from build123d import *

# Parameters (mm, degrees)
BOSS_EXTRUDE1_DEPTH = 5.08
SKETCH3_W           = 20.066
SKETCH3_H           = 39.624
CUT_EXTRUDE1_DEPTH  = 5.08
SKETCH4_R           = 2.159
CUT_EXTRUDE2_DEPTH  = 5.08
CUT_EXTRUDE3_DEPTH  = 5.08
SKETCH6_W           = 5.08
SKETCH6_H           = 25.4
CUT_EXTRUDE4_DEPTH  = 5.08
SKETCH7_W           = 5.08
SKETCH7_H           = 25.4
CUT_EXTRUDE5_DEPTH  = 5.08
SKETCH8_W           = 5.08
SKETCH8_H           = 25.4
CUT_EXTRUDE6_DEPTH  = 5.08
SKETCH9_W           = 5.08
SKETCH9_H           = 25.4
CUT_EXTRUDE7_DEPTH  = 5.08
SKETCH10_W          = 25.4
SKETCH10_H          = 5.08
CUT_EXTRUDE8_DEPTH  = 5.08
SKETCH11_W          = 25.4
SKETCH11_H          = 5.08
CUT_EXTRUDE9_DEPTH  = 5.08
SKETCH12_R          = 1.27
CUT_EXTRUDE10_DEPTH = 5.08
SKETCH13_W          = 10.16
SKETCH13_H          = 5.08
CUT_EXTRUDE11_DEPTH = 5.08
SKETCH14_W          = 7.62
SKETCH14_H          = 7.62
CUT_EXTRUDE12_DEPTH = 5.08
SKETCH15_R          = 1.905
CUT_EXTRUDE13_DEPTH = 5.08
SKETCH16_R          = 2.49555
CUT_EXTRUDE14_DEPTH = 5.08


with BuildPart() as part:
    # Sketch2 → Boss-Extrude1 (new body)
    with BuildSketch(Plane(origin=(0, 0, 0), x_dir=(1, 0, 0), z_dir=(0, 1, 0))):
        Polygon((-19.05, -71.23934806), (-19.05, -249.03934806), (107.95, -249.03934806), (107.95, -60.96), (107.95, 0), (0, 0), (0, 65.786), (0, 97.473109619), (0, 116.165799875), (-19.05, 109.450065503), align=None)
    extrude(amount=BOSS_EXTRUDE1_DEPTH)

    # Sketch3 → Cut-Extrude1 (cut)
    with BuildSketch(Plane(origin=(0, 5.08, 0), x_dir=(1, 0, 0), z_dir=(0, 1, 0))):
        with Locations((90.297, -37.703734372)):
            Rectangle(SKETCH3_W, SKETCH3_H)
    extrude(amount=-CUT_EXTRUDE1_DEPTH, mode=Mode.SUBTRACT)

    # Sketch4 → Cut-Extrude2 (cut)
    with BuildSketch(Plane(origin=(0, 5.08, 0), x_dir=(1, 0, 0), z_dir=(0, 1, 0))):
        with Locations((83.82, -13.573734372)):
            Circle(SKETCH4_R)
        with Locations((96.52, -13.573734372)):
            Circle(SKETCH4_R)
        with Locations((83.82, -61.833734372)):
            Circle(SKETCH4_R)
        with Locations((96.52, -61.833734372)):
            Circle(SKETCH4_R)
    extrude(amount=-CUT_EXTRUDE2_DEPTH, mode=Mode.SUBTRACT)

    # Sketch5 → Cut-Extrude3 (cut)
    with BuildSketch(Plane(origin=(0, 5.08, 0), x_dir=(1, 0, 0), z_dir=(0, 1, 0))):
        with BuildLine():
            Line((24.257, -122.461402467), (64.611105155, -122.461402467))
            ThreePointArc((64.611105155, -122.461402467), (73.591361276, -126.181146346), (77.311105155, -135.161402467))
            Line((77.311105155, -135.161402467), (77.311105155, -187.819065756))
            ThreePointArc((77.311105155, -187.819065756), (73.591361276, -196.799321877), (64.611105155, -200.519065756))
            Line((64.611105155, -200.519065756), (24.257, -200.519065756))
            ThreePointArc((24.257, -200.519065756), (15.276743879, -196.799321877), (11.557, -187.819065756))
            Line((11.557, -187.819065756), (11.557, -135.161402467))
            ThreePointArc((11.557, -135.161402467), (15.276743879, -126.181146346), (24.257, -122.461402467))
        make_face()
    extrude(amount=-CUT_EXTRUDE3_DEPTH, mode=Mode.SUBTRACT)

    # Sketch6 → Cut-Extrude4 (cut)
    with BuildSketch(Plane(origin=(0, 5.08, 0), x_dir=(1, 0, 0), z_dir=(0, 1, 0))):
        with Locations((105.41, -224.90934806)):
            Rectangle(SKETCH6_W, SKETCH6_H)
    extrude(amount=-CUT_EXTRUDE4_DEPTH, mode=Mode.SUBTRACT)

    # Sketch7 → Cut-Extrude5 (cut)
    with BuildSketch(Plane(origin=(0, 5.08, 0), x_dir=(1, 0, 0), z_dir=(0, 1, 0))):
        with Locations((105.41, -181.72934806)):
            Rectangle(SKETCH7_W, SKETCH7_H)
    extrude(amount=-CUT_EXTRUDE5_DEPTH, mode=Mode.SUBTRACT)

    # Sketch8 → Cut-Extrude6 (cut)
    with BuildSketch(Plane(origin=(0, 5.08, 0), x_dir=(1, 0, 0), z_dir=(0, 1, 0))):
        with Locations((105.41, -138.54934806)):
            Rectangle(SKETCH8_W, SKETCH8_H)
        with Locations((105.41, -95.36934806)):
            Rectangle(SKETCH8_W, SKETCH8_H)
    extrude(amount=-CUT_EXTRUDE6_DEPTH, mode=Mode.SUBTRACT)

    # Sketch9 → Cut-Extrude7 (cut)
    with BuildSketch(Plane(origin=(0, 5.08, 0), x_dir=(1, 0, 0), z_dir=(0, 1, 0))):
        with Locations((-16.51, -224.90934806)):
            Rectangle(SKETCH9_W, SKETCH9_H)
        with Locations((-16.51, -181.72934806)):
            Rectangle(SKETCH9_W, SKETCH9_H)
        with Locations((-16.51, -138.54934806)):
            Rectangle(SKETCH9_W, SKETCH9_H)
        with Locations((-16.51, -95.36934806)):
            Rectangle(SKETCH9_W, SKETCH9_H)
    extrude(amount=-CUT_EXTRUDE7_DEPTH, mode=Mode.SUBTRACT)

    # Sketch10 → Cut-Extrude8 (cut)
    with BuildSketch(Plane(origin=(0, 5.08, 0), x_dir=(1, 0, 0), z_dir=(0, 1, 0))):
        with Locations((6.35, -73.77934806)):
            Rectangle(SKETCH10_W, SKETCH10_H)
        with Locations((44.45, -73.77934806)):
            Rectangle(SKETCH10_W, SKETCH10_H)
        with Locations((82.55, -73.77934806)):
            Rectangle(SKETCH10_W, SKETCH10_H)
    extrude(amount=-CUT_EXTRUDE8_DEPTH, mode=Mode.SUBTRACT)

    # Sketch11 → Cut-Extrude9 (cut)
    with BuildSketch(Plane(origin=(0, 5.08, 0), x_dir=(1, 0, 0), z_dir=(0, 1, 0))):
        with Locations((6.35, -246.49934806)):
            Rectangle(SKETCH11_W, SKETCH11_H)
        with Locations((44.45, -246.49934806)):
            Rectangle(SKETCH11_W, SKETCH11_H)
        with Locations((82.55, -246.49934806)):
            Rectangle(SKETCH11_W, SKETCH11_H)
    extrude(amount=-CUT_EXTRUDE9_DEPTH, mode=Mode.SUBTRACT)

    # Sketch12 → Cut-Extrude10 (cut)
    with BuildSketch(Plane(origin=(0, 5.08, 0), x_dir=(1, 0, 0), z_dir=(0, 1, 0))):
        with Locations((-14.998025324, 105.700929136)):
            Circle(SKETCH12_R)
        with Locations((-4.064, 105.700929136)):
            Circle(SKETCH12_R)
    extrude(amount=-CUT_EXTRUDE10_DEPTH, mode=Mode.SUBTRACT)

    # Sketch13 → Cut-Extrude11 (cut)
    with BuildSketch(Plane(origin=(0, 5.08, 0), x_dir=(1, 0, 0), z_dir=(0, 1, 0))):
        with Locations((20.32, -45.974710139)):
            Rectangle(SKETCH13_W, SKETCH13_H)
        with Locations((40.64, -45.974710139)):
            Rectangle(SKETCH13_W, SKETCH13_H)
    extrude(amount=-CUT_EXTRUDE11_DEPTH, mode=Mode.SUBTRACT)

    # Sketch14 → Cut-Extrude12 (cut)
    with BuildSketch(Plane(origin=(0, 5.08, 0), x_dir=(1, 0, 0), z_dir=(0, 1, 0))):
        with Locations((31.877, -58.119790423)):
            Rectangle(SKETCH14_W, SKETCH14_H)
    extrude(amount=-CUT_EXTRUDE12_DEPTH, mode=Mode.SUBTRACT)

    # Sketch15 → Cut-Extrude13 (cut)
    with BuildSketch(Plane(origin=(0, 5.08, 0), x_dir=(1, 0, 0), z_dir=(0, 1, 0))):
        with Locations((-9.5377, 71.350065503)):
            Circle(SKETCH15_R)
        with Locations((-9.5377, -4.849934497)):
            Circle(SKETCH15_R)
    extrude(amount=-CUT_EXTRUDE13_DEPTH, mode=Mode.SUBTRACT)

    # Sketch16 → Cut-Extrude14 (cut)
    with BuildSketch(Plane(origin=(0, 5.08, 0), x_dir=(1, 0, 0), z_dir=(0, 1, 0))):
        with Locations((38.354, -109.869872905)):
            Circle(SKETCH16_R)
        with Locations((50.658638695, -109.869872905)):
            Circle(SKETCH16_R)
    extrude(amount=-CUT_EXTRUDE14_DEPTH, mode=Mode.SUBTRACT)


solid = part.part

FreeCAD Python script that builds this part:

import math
import FreeCAD as App
import Part
import Sketcher

V = App.Vector
Q = App.Units.Quantity

doc = App.newDocument("Part")
params = doc.addObject("Spreadsheet::Sheet", "Params")
for row, (alias, value) in enumerate([
    ("sketch1_width", "5 in"),
    ("sketch1_width2", "4.25 in"),
    ("pad1_length", "0.2 in"),
    ("sketch2_width", "0.79 in"),
    ("sketch2_height", "1.56 in"),
    ("pocket1_length", "0.2 in"),
    ("sketch3_diameter", "0.17 in"),
    ("pocket2_length", "0.2 in"),
    ("sketch4_radius", "0.5 in"),
    ("pocket3_length", "0.2 in"),
    ("sketch5_height", "1 in"),
    ("sketch5_width", "0.2 in"),
    ("pocket4_length", "0.2 in"),
    ("sketch6_height", "1 in"),
    ("sketch6_width", "0.2 in"),
    ("pocket5_length", "0.2 in"),
    ("sketch7_height", "1 in"),
    ("sketch7_width", "0.2 in"),
    ("pocket6_length", "0.2 in"),
    ("sketch8_height", "1 in"),
    ("sketch8_width", "0.2 in"),
    ("pocket7_length", "0.2 in"),
    ("sketch9_width", "1 in"),
    ("sketch9_height", "0.2 in"),
    ("pocket8_length", "0.2 in"),
    ("sketch10_width", "1 in"),
    ("sketch10_height", "0.2 in"),
    ("pocket9_length", "0.2 in"),
    ("sketch11_diameter", "0.1 in"),
    ("pocket10_length", "0.2 in"),
    ("sketch12_width", "0.4 in"),
    ("sketch12_height", "0.2 in"),
    ("pocket11_length", "0.2 in"),
    ("sketch13_width", "0.3 in"),
    ("pocket12_length", "0.2 in"),
    ("sketch14_diameter", "0.15 in"),
    ("pocket13_length", "0.2 in"),
    ("pocket14_length", "0.2 in"),
], start=1):
    params.set(f"A{row}", alias)
    params.set(f"B{row}", "=" + value)
    params.setAlias(f"B{row}", alias)

body = doc.addObject("PartDesign::Body", "Body")

sketch1 = doc.addObject("Sketcher::SketchObject", "Sketch")
body.addObject(sketch1)
sketch1.AttachmentSupport = (doc.XZ_Plane, [""])
sketch1.MapMode = "FlatFace"
sketch1.addGeometry([
    Part.LineSegment(V(-19, 249, 0), V(108, 249, 0)),
    Part.LineSegment(V(108, 249, 0), V(108, 0, 0)),
    Part.LineSegment(V(108, 0, 0), V(0, 0, 0)),
    Part.LineSegment(V(0, 0, 0), V(0, -116, 0)),
    Part.LineSegment(V(0, -116, 0), V(-19, -109, 0)),
    Part.LineSegment(V(-19, -109, 0), V(-19, 249, 0)),
], False)
sketch1.addConstraint([
    Sketcher.Constraint("Coincident", 0, 2, 1, 1),
    Sketcher.Constraint("Coincident", 1, 2, 2, 1),
    Sketcher.Constraint("Coincident", 2, 2, 3, 1),
    Sketcher.Constraint("Coincident", 3, 2, 4, 1),
    Sketcher.Constraint("Coincident", 4, 2, 5, 1),
    Sketcher.Constraint("Coincident", 5, 2, 0, 1),
    Sketcher.Constraint("Horizontal", 0),
    Sketcher.Constraint("Vertical", 1),
    Sketcher.Constraint("Horizontal", 2),
    Sketcher.Constraint("Vertical", 3),
    Sketcher.Constraint("Vertical", 5),
    Sketcher.Constraint("Coincident", 2, 2, -1, 1),
    Sketcher.Constraint("DistanceX", 0, 1, 0, 2, Q("5 in")),
    Sketcher.Constraint("DistanceX", 2, 2, 2, 1, Q("4.25 in")),
    Sketcher.Constraint("DistanceY", 3, 2, 3, 1, Q("116.1658 mm")),
    Sketcher.Constraint("Distance", 4, Q("20.199099 mm")),
    Sketcher.Constraint("DistanceY", 1, 2, 1, 1, Q("249.039348 mm")),
])
sketch1.setExpression("Constraints[12]", "Params.sketch1_width")
sketch1.setExpression("Constraints[13]", "Params.sketch1_width2")
pad1 = doc.addObject("PartDesign::Pad", "Pad")
body.addObject(pad1)
pad1.Profile = sketch1
pad1.setExpression("Length", "Params.pad1_length")
pad1.Reversed = True

sketch2 = doc.addObject("Sketcher::SketchObject", "Sketch001")
body.addObject(sketch2)
sketch2.AttachmentSupport = (doc.XZ_Plane, [""])
sketch2.MapMode = "FlatFace"
sketch2.AttachmentOffset = App.Placement(V(0, 0, -0.2 * 25.4), App.Rotation())
sketch2.addGeometry([
    Part.LineSegment(V(80, 18, 0), V(80, 58, 0)),
    Part.LineSegment(V(80, 58, 0), V(100, 58, 0)),
    Part.LineSegment(V(100, 58, 0), V(100, 18, 0)),
    Part.LineSegment(V(100, 18, 0), V(80, 18, 0)),
], False)
sketch2.addConstraint([
    Sketcher.Constraint("Coincident", 0, 2, 1, 1),
    Sketcher.Constraint("Coincident", 1, 2, 2, 1),
    Sketcher.Constraint("Coincident", 2, 2, 3, 1),
    Sketcher.Constraint("Coincident", 3, 2, 0, 1),
    Sketcher.Constraint("Vertical", 0),
    Sketcher.Constraint("Horizontal", 1),
    Sketcher.Constraint("Vertical", 2),
    Sketcher.Constraint("Horizontal", 3),
    Sketcher.Constraint("DistanceX", 1, 1, 1, 2, Q("0.79 in")),
    Sketcher.Constraint("DistanceY", 0, 1, 0, 2, Q("1.56 in")),
    Sketcher.Constraint("DistanceX", -1, 1, 0, 2, Q("3.16 in")),
    Sketcher.Constraint("DistanceY", -1, 1, 0, 2, Q("57.515734 mm")),
])
sketch2.setExpression("Constraints[8]", "Params.sketch2_width")
sketch2.setExpression("Constraints[9]", "Params.sketch2_height")
pocket1 = doc.addObject("PartDesign::Pocket", "Pocket")
body.addObject(pocket1)
pocket1.Profile = sketch2
pocket1.setExpression("Length", "Params.pocket1_length")
pocket1.Reversed = True

sketch3 = doc.addObject("Sketcher::SketchObject", "Sketch002")
body.addObject(sketch3)
sketch3.AttachmentSupport = (doc.XZ_Plane, [""])
sketch3.MapMode = "FlatFace"
sketch3.AttachmentOffset = App.Placement(V(0, 0, -0.2 * 25.4), App.Rotation())
sketch3.addGeometry([
    Part.Circle(V(83.8, 13.6, 0), V(0, 0, 1), 2.2),
    Part.Circle(V(96.5, 13.6, 0), V(0, 0, 1), 2.2),
    Part.Circle(V(83.8, 61.8, 0), V(0, 0, 1), 2.2),
    Part.Circle(V(96.5, 61.8, 0), V(0, 0, 1), 2.2),
], False)
sketch3.addConstraint([
    Sketcher.Constraint("Equal", 0, 1),
    Sketcher.Constraint("Equal", 1, 2),
    Sketcher.Constraint("Equal", 2, 3),
    Sketcher.Constraint("Horizontal", 0, 3, 1, 3),
    Sketcher.Constraint("Horizontal", 2, 3, 3, 3),
    Sketcher.Constraint("Vertical", 0, 3, 2, 3),
    Sketcher.Constraint("Vertical", 1, 3, 3, 3),
    Sketcher.Constraint("Diameter", 0, Q("0.17 in")),
    Sketcher.Constraint("DistanceX", -1, 1, 0, 3, Q("3.3 in")),
    Sketcher.Constraint("DistanceX", -1, 1, 1, 3, Q("3.8 in")),
    Sketcher.Constraint("DistanceY", 0, 3, 2, 3, Q("1.9 in")),
    Sketcher.Constraint("DistanceY", -1, 1, 0, 3, Q("13.573734 mm")),
])
sketch3.setExpression("Constraints[7]", "Params.sketch3_diameter")
pocket2 = doc.addObject("PartDesign::Pocket", "Pocket001")
body.addObject(pocket2)
pocket2.Profile = sketch3
pocket2.setExpression("Length", "Params.pocket2_length")
pocket2.Reversed = True

sketch4 = doc.addObject("Sketcher::SketchObject", "Sketch003")
body.addObject(sketch4)
sketch4.AttachmentSupport = (doc.XZ_Plane, [""])
sketch4.MapMode = "FlatFace"
sketch4.AttachmentOffset = App.Placement(V(0, 0, -0.2 * 25.4), App.Rotation())
sketch4.addGeometry([
    Part.LineSegment(V(65, 122, 0), V(24, 122, 0)),
    Part.ArcOfCircle(Part.Circle(V(24, 135, 0), V(0, 0, 1), 13), math.radians(180), math.radians(270)),
    Part.LineSegment(V(12, 135, 0), V(12, 188, 0)),
    Part.ArcOfCircle(Part.Circle(V(24, 188, 0), V(0, 0, 1), 13), math.radians(90), math.radians(180)),
    Part.LineSegment(V(24, 201, 0), V(65, 201, 0)),
    Part.ArcOfCircle(Part.Circle(V(65, 188, 0), V(0, 0, 1), 13), math.radians(0), math.radians(90)),
    Part.LineSegment(V(77, 188, 0), V(77, 135, 0)),
    Part.ArcOfCircle(Part.Circle(V(65, 135, 0), V(0, 0, 1), 13), math.radians(-90), math.radians(0)),
], False)
sketch4.addConstraint([
    Sketcher.Constraint("Tangent", 0, 2, 1, 2),
    Sketcher.Constraint("Tangent", 1, 1, 2, 1),
    Sketcher.Constraint("Tangent", 2, 2, 3, 2),
    Sketcher.Constraint("Tangent", 3, 1, 4, 1),
    Sketcher.Constraint("Tangent", 4, 2, 5, 2),
    Sketcher.Constraint("Tangent", 5, 1, 6, 1),
    Sketcher.Constraint("Tangent", 6, 2, 7, 2),
    Sketcher.Constraint("Tangent", 7, 1, 0, 1),
    Sketcher.Constraint("Horizontal", 0),
    Sketcher.Constraint("Vertical", 2),
    Sketcher.Constraint("Horizontal", 4),
    Sketcher.Constraint("Vertical", 6),
    Sketcher.Constraint("Equal", 1, 3),
    Sketcher.Constraint("Equal", 3, 5),
    Sketcher.Constraint("Equal", 5, 7),
    Sketcher.Constraint("Radius", 1, Q("0.5 in")),
    Sketcher.Constraint("DistanceX", -1, 1, 1, 3, Q("0.955 in")),
    Sketcher.Constraint("DistanceX", 0, 2, 0, 1, Q("40.354105 mm")),
    Sketcher.Constraint("DistanceY", 2, 1, 2, 2, Q("52.657663 mm")),
    Sketcher.Constraint("DistanceY", -1, 1, 1, 3, Q("135.161402 mm")),
])
sketch4.setExpression("Constraints[15]", "Params.sketch4_radius")
pocket3 = doc.addObject("PartDesign::Pocket", "Pocket002")
body.addObject(pocket3)
pocket3.Profile = sketch4
pocket3.setExpression("Length", "Params.pocket3_length")
pocket3.Reversed = True

sketch5 = doc.addObject("Sketcher::SketchObject", "Sketch004")
body.addObject(sketch5)
sketch5.AttachmentSupport = (doc.XZ_Plane, [""])
sketch5.MapMode = "FlatFace"
sketch5.AttachmentOffset = App.Placement(V(0, 0, -0.2 * 25.4), App.Rotation())
sketch5.addGeometry([
    Part.LineSegment(V(103, 212, 0), V(103, 238, 0)),
    Part.LineSegment(V(103, 238, 0), V(108, 238, 0)),
    Part.LineSegment(V(108, 238, 0), V(108, 212, 0)),
    Part.LineSegment(V(108, 212, 0), V(103, 212, 0)),
], False)
sketch5.addConstraint([
    Sketcher.Constraint("Coincident", 0, 2, 1, 1),
    Sketcher.Constraint("Coincident", 1, 2, 2, 1),
    Sketcher.Constraint("Coincident", 2, 2, 3, 1),
    Sketcher.Constraint("Coincident", 3, 2, 0, 1),
    Sketcher.Constraint("Vertical", 0),
    Sketcher.Constraint("Horizontal", 1),
    Sketcher.Constraint("Vertical", 2),
    Sketcher.Constraint("Horizontal", 3),
    Sketcher.Constraint("DistanceY", 0, 1, 0, 2, Q("1 in")),
    Sketcher.Constraint("DistanceX", 1, 1, 1, 2, Q("0.2 in")),
    Sketcher.Constraint("DistanceX", -1, 1, 0, 2, Q("4.05 in")),
    Sketcher.Constraint("DistanceY", -1, 1, 0, 2, Q("237.609348 mm")),
])
sketch5.setExpression("Constraints[8]", "Params.sketch5_height")
sketch5.setExpression("Constraints[9]", "Params.sketch5_width")
pocket4 = doc.addObject("PartDesign::Pocket", "Pocket003")
body.addObject(pocket4)
pocket4.Profile = sketch5
pocket4.setExpression("Length", "Params.pocket4_length")
pocket4.Reversed = True

sketch6 = doc.addObject("Sketcher::SketchObject", "Sketch005")
body.addObject(sketch6)
sketch6.AttachmentSupport = (doc.XZ_Plane, [""])
sketch6.MapMode = "FlatFace"
sketch6.AttachmentOffset = App.Placement(V(0, 0, -0.2 * 25.4), App.Rotation())
sketch6.addGeometry([
    Part.LineSegment(V(103, 169, 0), V(103, 194, 0)),
    Part.LineSegment(V(103, 194, 0), V(108, 194, 0)),
    Part.LineSegment(V(108, 194, 0), V(108, 169, 0)),
    Part.LineSegment(V(108, 169, 0), V(103, 169, 0)),
], False)
sketch6.addConstraint([
    Sketcher.Constraint("Coincident", 0, 2, 1, 1),
    Sketcher.Constraint("Coincident", 1, 2, 2, 1),
    Sketcher.Constraint("Coincident", 2, 2, 3, 1),
    Sketcher.Constraint("Coincident", 3, 2, 0, 1),
    Sketcher.Constraint("Vertical", 0),
    Sketcher.Constraint("Horizontal", 1),
    Sketcher.Constraint("Vertical", 2),
    Sketcher.Constraint("Horizontal", 3),
    Sketcher.Constraint("DistanceY", 0, 1, 0, 2, Q("1 in")),
    Sketcher.Constraint("DistanceX", 1, 1, 1, 2, Q("0.2 in")),
    Sketcher.Constraint("DistanceX", -1, 1, 0, 2, Q("4.05 in")),
    Sketcher.Constraint("DistanceY", -1, 1, 0, 2, Q("194.429348 mm")),
])
sketch6.setExpression("Constraints[8]", "Params.sketch6_height")
sketch6.setExpression("Constraints[9]", "Params.sketch6_width")
pocket5 = doc.addObject("PartDesign::Pocket", "Pocket004")
body.addObject(pocket5)
pocket5.Profile = sketch6
pocket5.setExpression("Length", "Params.pocket5_length")
pocket5.Reversed = True

sketch7 = doc.addObject("Sketcher::SketchObject", "Sketch006")
body.addObject(sketch7)
sketch7.AttachmentSupport = (doc.XZ_Plane, [""])
sketch7.MapMode = "FlatFace"
sketch7.AttachmentOffset = App.Placement(V(0, 0, -0.2 * 25.4), App.Rotation())
sketch7.addGeometry([
    Part.LineSegment(V(103, 126, 0), V(103, 151, 0)),
    Part.LineSegment(V(103, 151, 0), V(108, 151, 0)),
    Part.LineSegment(V(108, 151, 0), V(108, 126, 0)),
    Part.LineSegment(V(108, 126, 0), V(103, 126, 0)),
    Part.LineSegment(V(103, 83, 0), V(103, 108, 0)),
    Part.LineSegment(V(103, 108, 0), V(108, 108, 0)),
    Part.LineSegment(V(108, 108, 0), V(108, 83, 0)),
    Part.LineSegment(V(108, 83, 0), V(103, 83, 0)),
], False)
sketch7.addConstraint([
    Sketcher.Constraint("Coincident", 0, 2, 1, 1),
    Sketcher.Constraint("Coincident", 1, 2, 2, 1),
    Sketcher.Constraint("Coincident", 2, 2, 3, 1),
    Sketcher.Constraint("Coincident", 3, 2, 0, 1),
    Sketcher.Constraint("Coincident", 4, 2, 5, 1),
    Sketcher.Constraint("Coincident", 5, 2, 6, 1),
    Sketcher.Constraint("Coincident", 6, 2, 7, 1),
    Sketcher.Constraint("Coincident", 7, 2, 4, 1),
    Sketcher.Constraint("Vertical", 0),
    Sketcher.Constraint("Horizontal", 1),
    Sketcher.Constraint("Vertical", 2),
    Sketcher.Constraint("Horizontal", 3),
    Sketcher.Constraint("Vertical", 4),
    Sketcher.Constraint("Horizontal", 5),
    Sketcher.Constraint("Vertical", 6),
    Sketcher.Constraint("Horizontal", 7),
    Sketcher.Constraint("Vertical", 3, 2, 4, 2),
    Sketcher.Constraint("Vertical", 2, 2, 5, 2),
    Sketcher.Constraint("Equal", 2, 4),
    Sketcher.Constraint("DistanceY", 0, 1, 0, 2, Q("1 in")),
    Sketcher.Constraint("DistanceX", 1, 1, 1, 2, Q("0.2 in")),
    Sketcher.Constraint("DistanceY", 4, 2, 3, 2, Q("0.7 in")),
    Sketcher.Constraint("DistanceX", -1, 1, 0, 2, Q("4.05 in")),
    Sketcher.Constraint("DistanceY", -1, 1, 0, 2, Q("151.249348 mm")),
])
sketch7.setExpression("Constraints[19]", "Params.sketch7_height")
sketch7.setExpression("Constraints[20]", "Params.sketch7_width")
pocket6 = doc.addObject("PartDesign::Pocket", "Pocket005")
body.addObject(pocket6)
pocket6.Profile = sketch7
pocket6.setExpression("Length", "Params.pocket6_length")
pocket6.Reversed = True

sketch8 = doc.addObject("Sketcher::SketchObject", "Sketch007")
body.addObject(sketch8)
sketch8.AttachmentSupport = (doc.XZ_Plane, [""])
sketch8.MapMode = "FlatFace"
sketch8.AttachmentOffset = App.Placement(V(0, 0, -0.2 * 25.4), App.Rotation())
sketch8.addGeometry([
    Part.LineSegment(V(-19, 212, 0), V(-19, 238, 0)),
    Part.LineSegment(V(-19, 238, 0), V(-14, 238, 0)),
    Part.LineSegment(V(-14, 238, 0), V(-14, 212, 0)),
    Part.LineSegment(V(-14, 212, 0), V(-19, 212, 0)),
    Part.LineSegment(V(-19, 169, 0), V(-19, 194, 0)),
    Part.LineSegment(V(-19, 194, 0), V(-14, 194, 0)),
    Part.LineSegment(V(-14, 194, 0), V(-14, 169, 0)),
    Part.LineSegment(V(-14, 169, 0), V(-19, 169, 0)),
    Part.LineSegment(V(-19, 126, 0), V(-19, 151, 0)),
    Part.LineSegment(V(-19, 151, 0), V(-14, 151, 0)),
    Part.LineSegment(V(-14, 151, 0), V(-14, 126, 0)),
    Part.LineSegment(V(-14, 126, 0), V(-19, 126, 0)),
    Part.LineSegment(V(-19, 83, 0), V(-19, 108, 0)),
    Part.LineSegment(V(-19, 108, 0), V(-14, 108, 0)),
    Part.LineSegment(V(-14, 108, 0), V(-14, 83, 0)),
    Part.LineSegment(V(-14, 83, 0), V(-19, 83, 0)),
], False)
sketch8.addConstraint([
    Sketcher.Constraint("Coincident", 0, 2, 1, 1),
    Sketcher.Constraint("Coincident", 1, 2, 2, 1),
    Sketcher.Constraint("Coincident", 2, 2, 3, 1),
    Sketcher.Constraint("Coincident", 3, 2, 0, 1),
    Sketcher.Constraint("Coincident", 4, 2, 5, 1),
    Sketcher.Constraint("Coincident", 5, 2, 6, 1),
    Sketcher.Constraint("Coincident", 6, 2, 7, 1),
    Sketcher.Constraint("Coincident", 7, 2, 4, 1),
    Sketcher.Constraint("Coincident", 8, 2, 9, 1),
    Sketcher.Constraint("Coincident", 9, 2, 10, 1),
    Sketcher.Constraint("Coincident", 10, 2, 11, 1),
    Sketcher.Constraint("Coincident", 11, 2, 8, 1),
    Sketcher.Constraint("Coincident", 12, 2, 13, 1),
    Sketcher.Constraint("Coincident", 13, 2, 14, 1),
    Sketcher.Constraint("Coincident", 14, 2, 15, 1),
    Sketcher.Constraint("Coincident", 15, 2, 12, 1),
    Sketcher.Constraint("Vertical", 0),
    Sketcher.Constraint("Horizontal", 1),
    Sketcher.Constraint("Vertical", 2),
    Sketcher.Constraint("Horizontal", 3),
    Sketcher.Constraint("Vertical", 4),
    Sketcher.Constraint("Horizontal", 5),
    Sketcher.Constraint("Vertical", 6),
    Sketcher.Constraint("Horizontal", 7),
    Sketcher.Constraint("Vertical", 8),
    Sketcher.Constraint("Horizontal", 9),
    Sketcher.Constraint("Vertical", 10),
    Sketcher.Constraint("Horizontal", 11),
    Sketcher.Constraint("Vertical", 12),
    Sketcher.Constraint("Horizontal", 13),
    Sketcher.Constraint("Vertical", 14),
    Sketcher.Constraint("Horizontal", 15),
    Sketcher.Constraint("Vertical", 3, 2, 4, 2),
    Sketcher.Constraint("Vertical", 2, 2, 5, 2),
    Sketcher.Constraint("Vertical", 7, 2, 8, 2),
    Sketcher.Constraint("Vertical", 6, 2, 9, 2),
    Sketcher.Constraint("Vertical", 11, 2, 12, 2),
    Sketcher.Constraint("Vertical", 10, 2, 13, 2),
    Sketcher.Constraint("Equal", 2, 4),
    Sketcher.Constraint("Equal", 6, 8),
    Sketcher.Constraint("Equal", 10, 12),
    Sketcher.Constraint("DistanceY", 0, 1, 0, 2, Q("1 in")),
    Sketcher.Constraint("DistanceX", 1, 1, 1, 2, Q("0.2 in")),
    Sketcher.Constraint("DistanceY", 4, 2, 3, 2, Q("0.7 in")),
    Sketcher.Constraint("DistanceY", 8, 2, 7, 2, Q("0.7 in")),
    Sketcher.Constraint("DistanceY", 12, 2, 11, 2, Q("0.7 in")),
    Sketcher.Constraint("DistanceX", 0, 2, -1, 1, Q("0.75 in")),
    Sketcher.Constraint("DistanceY", -1, 1, 0, 2, Q("237.609348 mm")),
])
sketch8.setExpression("Constraints[41]", "Params.sketch8_height")
sketch8.setExpression("Constraints[42]", "Params.sketch8_width")
pocket7 = doc.addObject("PartDesign::Pocket", "Pocket006")
body.addObject(pocket7)
pocket7.Profile = sketch8
pocket7.setExpression("Length", "Params.pocket7_length")
pocket7.Reversed = True

sketch9 = doc.addObject("Sketcher::SketchObject", "Sketch008")
body.addObject(sketch9)
sketch9.AttachmentSupport = (doc.XZ_Plane, [""])
sketch9.MapMode = "FlatFace"
sketch9.AttachmentOffset = App.Placement(V(0, 0, -0.2 * 25.4), App.Rotation())
sketch9.addGeometry([
    Part.LineSegment(V(-6, 71, 0), V(-6, 76, 0)),
    Part.LineSegment(V(-6, 76, 0), V(19, 76, 0)),
    Part.LineSegment(V(19, 76, 0), V(19, 71, 0)),
    Part.LineSegment(V(19, 71, 0), V(-6, 71, 0)),
    Part.LineSegment(V(32, 71, 0), V(32, 76, 0)),
    Part.LineSegment(V(32, 76, 0), V(57, 76, 0)),
    Part.LineSegment(V(57, 76, 0), V(57, 71, 0)),
    Part.LineSegment(V(57, 71, 0), V(32, 71, 0)),
    Part.LineSegment(V(70, 71, 0), V(70, 76, 0)),
    Part.LineSegment(V(70, 76, 0), V(95, 76, 0)),
    Part.LineSegment(V(95, 76, 0), V(95, 71, 0)),
    Part.LineSegment(V(95, 71, 0), V(70, 71, 0)),
], False)
sketch9.addConstraint([
    Sketcher.Constraint("Coincident", 0, 2, 1, 1),
    Sketcher.Constraint("Coincident", 1, 2, 2, 1),
    Sketcher.Constraint("Coincident", 2, 2, 3, 1),
    Sketcher.Constraint("Coincident", 3, 2, 0, 1),
    Sketcher.Constraint("Coincident", 4, 2, 5, 1),
    Sketcher.Constraint("Coincident", 5, 2, 6, 1),
    Sketcher.Constraint("Coincident", 6, 2, 7, 1),
    Sketcher.Constraint("Coincident", 7, 2, 4, 1),
    Sketcher.Constraint("Coincident", 8, 2, 9, 1),
    Sketcher.Constraint("Coincident", 9, 2, 10, 1),
    Sketcher.Constraint("Coincident", 10, 2, 11, 1),
    Sketcher.Constraint("Coincident", 11, 2, 8, 1),
    Sketcher.Constraint("Vertical", 0),
    Sketcher.Constraint("Horizontal", 1),
    Sketcher.Constraint("Vertical", 2),
    Sketcher.Constraint("Horizontal", 3),
    Sketcher.Constraint("Vertical", 4),
    Sketcher.Constraint("Horizontal", 5),
    Sketcher.Constraint("Vertical", 6),
    Sketcher.Constraint("Horizontal", 7),
    Sketcher.Constraint("Vertical", 8),
    Sketcher.Constraint("Horizontal", 9),
    Sketcher.Constraint("Vertical", 10),
    Sketcher.Constraint("Horizontal", 11),
    Sketcher.Constraint("Horizontal", 1, 2, 4, 2),
    Sketcher.Constraint("Horizontal", 3, 2, 6, 2),
    Sketcher.Constraint("Horizontal", 5, 2, 8, 2),
    Sketcher.Constraint("Horizontal", 7, 2, 10, 2),
    Sketcher.Constraint("Equal", 3, 5),
    Sketcher.Constraint("Equal", 7, 9),
    Sketcher.Constraint("DistanceX", 1, 1, 1, 2, Q("1 in")),
    Sketcher.Constraint("DistanceY", 0, 1, 0, 2, Q("0.2 in")),
    Sketcher.Constraint("DistanceX", 1, 2, 8, 2, Q("2 in")),
    Sketcher.Constraint("DistanceX", 1, 2, 4, 2, Q("0.5 in")),
    Sketcher.Constraint("DistanceX", 0, 2, -1, 1, Q("0.25 in")),
    Sketcher.Constraint("DistanceY", -1, 1, 0, 2, Q("76.319348 mm")),
])
sketch9.setExpression("Constraints[30]", "Params.sketch9_width")
sketch9.setExpression("Constraints[31]", "Params.sketch9_height")
pocket8 = doc.addObject("PartDesign::Pocket", "Pocket007")
body.addObject(pocket8)
pocket8.Profile = sketch9
pocket8.setExpression("Length", "Params.pocket8_length")
pocket8.Reversed = True

sketch10 = doc.addObject("Sketcher::SketchObject", "Sketch009")
body.addObject(sketch10)
sketch10.AttachmentSupport = (doc.XZ_Plane, [""])
sketch10.MapMode = "FlatFace"
sketch10.AttachmentOffset = App.Placement(V(0, 0, -0.2 * 25.4), App.Rotation())
sketch10.addGeometry([
    Part.LineSegment(V(-6, 244, 0), V(-6, 249, 0)),
    Part.LineSegment(V(-6, 249, 0), V(19, 249, 0)),
    Part.LineSegment(V(19, 249, 0), V(19, 244, 0)),
    Part.LineSegment(V(19, 244, 0), V(-6, 244, 0)),
    Part.LineSegment(V(32, 244, 0), V(32, 249, 0)),
    Part.LineSegment(V(32, 249, 0), V(57, 249, 0)),
    Part.LineSegment(V(57, 249, 0), V(57, 244, 0)),
    Part.LineSegment(V(57, 244, 0), V(32, 244, 0)),
    Part.LineSegment(V(70, 244, 0), V(70, 249, 0)),
    Part.LineSegment(V(70, 249, 0), V(95, 249, 0)),
    Part.LineSegment(V(95, 249, 0), V(95, 244, 0)),
    Part.LineSegment(V(95, 244, 0), V(70, 244, 0)),
], False)
sketch10.addConstraint([
    Sketcher.Constraint("Coincident", 0, 2, 1, 1),
    Sketcher.Constraint("Coincident", 1, 2, 2, 1),
    Sketcher.Constraint("Coincident", 2, 2, 3, 1),
    Sketcher.Constraint("Coincident", 3, 2, 0, 1),
    Sketcher.Constraint("Coincident", 4, 2, 5, 1),
    Sketcher.Constraint("Coincident", 5, 2, 6, 1),
    Sketcher.Constraint("Coincident", 6, 2, 7, 1),
    Sketcher.Constraint("Coincident", 7, 2, 4, 1),
    Sketcher.Constraint("Coincident", 8, 2, 9, 1),
    Sketcher.Constraint("Coincident", 9, 2, 10, 1),
    Sketcher.Constraint("Coincident", 10, 2, 11, 1),
    Sketcher.Constraint("Coincident", 11, 2, 8, 1),
    Sketcher.Constraint("Vertical", 0),
    Sketcher.Constraint("Horizontal", 1),
    Sketcher.Constraint("Vertical", 2),
    Sketcher.Constraint("Horizontal", 3),
    Sketcher.Constraint("Vertical", 4),
    Sketcher.Constraint("Horizontal", 5),
    Sketcher.Constraint("Vertical", 6),
    Sketcher.Constraint("Horizontal", 7),
    Sketcher.Constraint("Vertical", 8),
    Sketcher.Constraint("Horizontal", 9),
    Sketcher.Constraint("Vertical", 10),
    Sketcher.Constraint("Horizontal", 11),
    Sketcher.Constraint("Horizontal", 1, 2, 4, 2),
    Sketcher.Constraint("Horizontal", 3, 2, 6, 2),
    Sketcher.Constraint("Horizontal", 5, 2, 8, 2),
    Sketcher.Constraint("Horizontal", 7, 2, 10, 2),
    Sketcher.Constraint("Equal", 3, 5),
    Sketcher.Constraint("Equal", 7, 9),
    Sketcher.Constraint("DistanceX", 1, 1, 1, 2, Q("1 in")),
    Sketcher.Constraint("DistanceY", 0, 1, 0, 2, Q("0.2 in")),
    Sketcher.Constraint("DistanceX", 1, 2, 8, 2, Q("2 in")),
    Sketcher.Constraint("DistanceX", 1, 2, 4, 2, Q("0.5 in")),
    Sketcher.Constraint("DistanceX", 0, 2, -1, 1, Q("0.25 in")),
    Sketcher.Constraint("DistanceY", -1, 1, 0, 2, Q("249.039348 mm")),
])
sketch10.setExpression("Constraints[30]", "Params.sketch10_width")
sketch10.setExpression("Constraints[31]", "Params.sketch10_height")
pocket9 = doc.addObject("PartDesign::Pocket", "Pocket008")
body.addObject(pocket9)
pocket9.Profile = sketch10
pocket9.setExpression("Length", "Params.pocket9_length")
pocket9.Reversed = True

sketch11 = doc.addObject("Sketcher::SketchObject", "Sketch010")
body.addObject(sketch11)
sketch11.AttachmentSupport = (doc.XZ_Plane, [""])
sketch11.MapMode = "FlatFace"
sketch11.AttachmentOffset = App.Placement(V(0, 0, -0.2 * 25.4), App.Rotation())
sketch11.addGeometry([
    Part.Circle(V(-15, -105.7, 0), V(0, 0, 1), 1.3),
    Part.Circle(V(-4.1, -105.7, 0), V(0, 0, 1), 1.3),
], False)
sketch11.addConstraint([
    Sketcher.Constraint("Equal", 0, 1),
    Sketcher.Constraint("Horizontal", 0, 3, 1, 3),
    Sketcher.Constraint("Diameter", 0, Q("0.1 in")),
    Sketcher.Constraint("DistanceX", 1, 3, -1, 1, Q("0.16 in")),
    Sketcher.Constraint("DistanceY", 0, 3, -1, 1, Q("105.700929 mm")),
    Sketcher.Constraint("DistanceX", 0, 3, -1, 1, Q("14.998025 mm")),
])
sketch11.setExpression("Constraints[2]", "Params.sketch11_diameter")
pocket10 = doc.addObject("PartDesign::Pocket", "Pocket009")
body.addObject(pocket10)
pocket10.Profile = sketch11
pocket10.setExpression("Length", "Params.pocket10_length")
pocket10.Reversed = True

sketch12 = doc.addObject("Sketcher::SketchObject", "Sketch011")
body.addObject(sketch12)
sketch12.AttachmentSupport = (doc.XZ_Plane, [""])
sketch12.MapMode = "FlatFace"
sketch12.AttachmentOffset = App.Placement(V(0, 0, -0.2 * 25.4), App.Rotation())
sketch12.addGeometry([
    Part.LineSegment(V(15, 43, 0), V(15, 49, 0)),
    Part.LineSegment(V(15, 49, 0), V(25, 49, 0)),
    Part.LineSegment(V(25, 49, 0), V(25, 43, 0)),
    Part.LineSegment(V(25, 43, 0), V(15, 43, 0)),
    Part.LineSegment(V(36, 43, 0), V(36, 49, 0)),
    Part.LineSegment(V(36, 49, 0), V(46, 49, 0)),
    Part.LineSegment(V(46, 49, 0), V(46, 43, 0)),
    Part.LineSegment(V(46, 43, 0), V(36, 43, 0)),
], False)
sketch12.addConstraint([
    Sketcher.Constraint("Coincident", 0, 2, 1, 1),
    Sketcher.Constraint("Coincident", 1, 2, 2, 1),
    Sketcher.Constraint("Coincident", 2, 2, 3, 1),
    Sketcher.Constraint("Coincident", 3, 2, 0, 1),
    Sketcher.Constraint("Coincident", 4, 2, 5, 1),
    Sketcher.Constraint("Coincident", 5, 2, 6, 1),
    Sketcher.Constraint("Coincident", 6, 2, 7, 1),
    Sketcher.Constraint("Coincident", 7, 2, 4, 1),
    Sketcher.Constraint("Vertical", 0),
    Sketcher.Constraint("Horizontal", 1),
    Sketcher.Constraint("Vertical", 2),
    Sketcher.Constraint("Horizontal", 3),
    Sketcher.Constraint("Vertical", 4),
    Sketcher.Constraint("Horizontal", 5),
    Sketcher.Constraint("Vertical", 6),
    Sketcher.Constraint("Horizontal", 7),
    Sketcher.Constraint("Horizontal", 1, 2, 4, 2),
    Sketcher.Constraint("Horizontal", 3, 2, 6, 2),
    Sketcher.Constraint("Equal", 3, 5),
    Sketcher.Constraint("DistanceX", 1, 1, 1, 2, Q("0.4 in")),
    Sketcher.Constraint("DistanceY", 0, 1, 0, 2, Q("0.2 in")),
    Sketcher.Constraint("DistanceX", -1, 1, 1, 2, Q("1 in")),
    Sketcher.Constraint("DistanceX", -1, 1, 4, 2, Q("1.4 in")),
    Sketcher.Constraint("DistanceY", -1, 1, 0, 2, Q("48.51471 mm")),
])
sketch12.setExpression("Constraints[19]", "Params.sketch12_width")
sketch12.setExpression("Constraints[20]", "Params.sketch12_height")
pocket11 = doc.addObject("PartDesign::Pocket", "Pocket010")
body.addObject(pocket11)
pocket11.Profile = sketch12
pocket11.setExpression("Length", "Params.pocket11_length")
pocket11.Reversed = True

sketch13 = doc.addObject("Sketcher::SketchObject", "Sketch012")
body.addObject(sketch13)
sketch13.AttachmentSupport = (doc.XZ_Plane, [""])
sketch13.MapMode = "FlatFace"
sketch13.AttachmentOffset = App.Placement(V(0, 0, -0.2 * 25.4), App.Rotation())
sketch13.addGeometry([
    Part.LineSegment(V(28, 54, 0), V(28, 62, 0)),
    Part.LineSegment(V(28, 62, 0), V(36, 62, 0)),
    Part.LineSegment(V(36, 62, 0), V(36, 54, 0)),
    Part.LineSegment(V(36, 54, 0), V(28, 54, 0)),
], False)
sketch13.addConstraint([
    Sketcher.Constraint("Coincident", 0, 2, 1, 1),
    Sketcher.Constraint("Coincident", 1, 2, 2, 1),
    Sketcher.Constraint("Coincident", 2, 2, 3, 1),
    Sketcher.Constraint("Coincident", 3, 2, 0, 1),
    Sketcher.Constraint("Vertical", 0),
    Sketcher.Constraint("Horizontal", 1),
    Sketcher.Constraint("Vertical", 2),
    Sketcher.Constraint("Horizontal", 3),
    Sketcher.Constraint("Equal", 3, 0),
    Sketcher.Constraint("DistanceX", 1, 1, 1, 2, Q("0.3 in")),
    Sketcher.Constraint("DistanceX", -1, 1, 0, 2, Q("1.105 in")),
    Sketcher.Constraint("DistanceY", -1, 1, 0, 2, Q("61.92979 mm")),
])
sketch13.setExpression("Constraints[9]", "Params.sketch13_width")
pocket12 = doc.addObject("PartDesign::Pocket", "Pocket011")
body.addObject(pocket12)
pocket12.Profile = sketch13
pocket12.setExpression("Length", "Params.pocket12_length")
pocket12.Reversed = True

sketch14 = doc.addObject("Sketcher::SketchObject", "Sketch013")
body.addObject(sketch14)
sketch14.AttachmentSupport = (doc.XZ_Plane, [""])
sketch14.MapMode = "FlatFace"
sketch14.AttachmentOffset = App.Placement(V(0, 0, -0.2 * 25.4), App.Rotation())
sketch14.addGeometry([
    Part.Circle(V(-9.5, -71.4, 0), V(0, 0, 1), 1.9),
    Part.Circle(V(-9.5, 4.8, 0), V(0, 0, 1), 1.9),
], False)
sketch14.addConstraint([
    Sketcher.Constraint("Equal", 0, 1),
    Sketcher.Constraint("Vertical", 0, 3, 1, 3),
    Sketcher.Constraint("Diameter", 0, Q("0.15 in")),
    Sketcher.Constraint("DistanceY", 0, 3, 1, 3, Q("3 in")),
    Sketcher.Constraint("DistanceX", 0, 3, -1, 1, Q("0.3755 in")),
    Sketcher.Constraint("DistanceY", 0, 3, -1, 1, Q("71.350066 mm")),
])
sketch14.setExpression("Constraints[2]", "Params.sketch14_diameter")
pocket13 = doc.addObject("PartDesign::Pocket", "Pocket012")
body.addObject(pocket13)
pocket13.Profile = sketch14
pocket13.setExpression("Length", "Params.pocket13_length")
pocket13.Reversed = True

sketch15 = doc.addObject("Sketcher::SketchObject", "Sketch014")
body.addObject(sketch15)
sketch15.AttachmentSupport = (doc.XZ_Plane, [""])
sketch15.MapMode = "FlatFace"
sketch15.AttachmentOffset = App.Placement(V(0, 0, -0.2 * 25.4), App.Rotation())
sketch15.addGeometry([
    Part.Circle(V(38.4, 109.9, 0), V(0, 0, 1), 2.5),
    Part.Circle(V(50.7, 109.9, 0), V(0, 0, 1), 2.5),
], False)
sketch15.addConstraint([
    Sketcher.Constraint("Equal", 0, 1),
    Sketcher.Constraint("Horizontal", 0, 3, 1, 3),
    Sketcher.Constraint("Diameter", 0, Q("0.1965 in")),
    Sketcher.Constraint("DistanceX", -1, 1, 0, 3, Q("1.51 in")),
    Sketcher.Constraint("DistanceX", -1, 1, 1, 3, Q("50.658639 mm")),
    Sketcher.Constraint("DistanceY", -1, 1, 0, 3, Q("109.869873 mm")),
])
pocket14 = doc.addObject("PartDesign::Pocket", "Pocket013")
body.addObject(pocket14)
pocket14.Profile = sketch15
pocket14.setExpression("Length", "Params.pocket14_length")
pocket14.Reversed = True

doc.recompute()
